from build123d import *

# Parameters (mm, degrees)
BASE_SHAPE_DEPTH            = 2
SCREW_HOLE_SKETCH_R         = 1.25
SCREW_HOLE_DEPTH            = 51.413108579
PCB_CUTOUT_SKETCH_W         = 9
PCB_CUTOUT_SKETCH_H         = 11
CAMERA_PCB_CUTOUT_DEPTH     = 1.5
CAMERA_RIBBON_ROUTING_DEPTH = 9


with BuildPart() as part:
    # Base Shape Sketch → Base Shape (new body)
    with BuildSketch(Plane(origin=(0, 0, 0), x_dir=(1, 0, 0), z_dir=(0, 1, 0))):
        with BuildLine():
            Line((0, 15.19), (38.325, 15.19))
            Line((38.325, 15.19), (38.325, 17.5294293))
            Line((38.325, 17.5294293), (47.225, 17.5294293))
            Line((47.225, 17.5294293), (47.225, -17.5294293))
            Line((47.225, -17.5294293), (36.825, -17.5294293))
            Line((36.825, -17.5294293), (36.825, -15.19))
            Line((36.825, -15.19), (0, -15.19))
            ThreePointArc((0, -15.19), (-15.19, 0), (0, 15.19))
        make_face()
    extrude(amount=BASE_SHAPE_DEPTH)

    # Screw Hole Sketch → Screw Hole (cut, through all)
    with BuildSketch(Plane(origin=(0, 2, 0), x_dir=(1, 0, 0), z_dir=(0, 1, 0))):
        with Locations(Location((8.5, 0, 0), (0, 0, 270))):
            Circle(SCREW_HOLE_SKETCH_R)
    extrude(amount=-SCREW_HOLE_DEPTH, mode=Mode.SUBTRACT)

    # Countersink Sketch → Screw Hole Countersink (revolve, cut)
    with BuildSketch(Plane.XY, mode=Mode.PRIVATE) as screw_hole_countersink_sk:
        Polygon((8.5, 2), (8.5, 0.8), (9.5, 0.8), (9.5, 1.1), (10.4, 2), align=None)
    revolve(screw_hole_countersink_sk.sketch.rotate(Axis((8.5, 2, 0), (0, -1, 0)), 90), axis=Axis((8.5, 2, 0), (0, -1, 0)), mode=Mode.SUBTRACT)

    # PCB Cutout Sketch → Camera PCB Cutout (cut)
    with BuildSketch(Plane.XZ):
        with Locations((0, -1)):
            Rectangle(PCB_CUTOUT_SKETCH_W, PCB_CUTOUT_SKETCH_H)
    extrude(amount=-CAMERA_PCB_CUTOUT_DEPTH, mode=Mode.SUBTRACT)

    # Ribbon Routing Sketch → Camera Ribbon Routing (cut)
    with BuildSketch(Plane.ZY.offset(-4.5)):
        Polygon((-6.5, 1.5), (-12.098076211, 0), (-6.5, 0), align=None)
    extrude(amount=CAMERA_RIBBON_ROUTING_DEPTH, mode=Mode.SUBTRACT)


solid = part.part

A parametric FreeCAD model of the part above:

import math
import FreeCAD as App
import Part
import Sketcher

V = App.Vector
Q = App.Units.Quantity


def add_polygon(sketch, points):
    """Adds a closed chain of lines whose ends are joined by coincident constraints."""
    first, n = sketch.GeometryCount, len(points)
    for a, b in zip(points, points[1:] + points[:1]):
        sketch.addGeometry(Part.LineSegment(App.Vector(*a, 0), App.Vector(*b, 0)), False)
    for i in range(n):
        sketch.addConstraint(Sketcher.Constraint("Coincident", first + i, 2, first + (i + 1) % n, 1))

doc = App.newDocument("Part")
body = doc.addObject("PartDesign::Body", "Body")

# Sketch on XZ plane
sketch1 = body.newObject("Sketcher::SketchObject", "Sketch")
sketch1.AttachmentSupport = (doc.getObject("XZ_Plane"), [""])
sketch1.MapMode = "FlatFace"
sketch1.addGeometry(Part.LineSegment(V(38.3, -15.2, 0), V(0, -15.2, 0)), False)
sketch1.addGeometry(Part.ArcOfCircle(Part.Circle(V(0, 0, 0), V(0, 0, 1), 15.2), math.radians(90), math.radians(270)), False)
sketch1.addGeometry(Part.LineSegment(V(0, 15.2, 0), V(36.8, 15.2, 0)), False)
sketch1.addGeometry(Part.LineSegment(V(36.8, 15.2, 0), V(36.8, 17.5, 0)), False)
sketch1.addGeometry(Part.LineSegment(V(36.8, 17.5, 0), V(47.2, 17.5, 0)), False)
sketch1.addGeometry(Part.LineSegment(V(47.2, 17.5, 0), V(47.2, -17.5, 0)), False)
sketch1.addGeometry(Part.LineSegment(V(47.2, -17.5, 0), V(38.3, -17.5, 0)), False)
sketch1.addGeometry(Part.LineSegment(V(38.3, -17.5, 0), V(38.3, -15.2, 0)), False)
sketch1.addConstraint(Sketcher.Constraint("Tangent", 0, 2, 1, 2))
sketch1.addConstraint(Sketcher.Constraint("Tangent", 1, 1, 2, 1))
sketch1.addConstraint(Sketcher.Constraint("Coincident", 2, 2, 3, 1))
sketch1.addConstraint(Sketcher.Constraint("Coincident", 3, 2, 4, 1))
sketch1.addConstraint(Sketcher.Constraint("Coincident", 4, 2, 5, 1))
sketch1.addConstraint(Sketcher.Constraint("Coincident", 5, 2, 6, 1))
sketch1.addConstraint(Sketcher.Constraint("Coincident", 6, 2, 7, 1))
sketch1.addConstraint(Sketcher.Constraint("Coincident", 7, 2, 0, 1))
sketch1.addConstraint(Sketcher.Constraint("Horizontal", 0))
sketch1.addConstraint(Sketcher.Constraint("Horizontal", 2))
sketch1.addConstraint(Sketcher.Constraint("Vertical", 3))
sketch1.addConstraint(Sketcher.Constraint("Horizontal", 4))
sketch1.addConstraint(Sketcher.Constraint("Vertical", 5))
sketch1.addConstraint(Sketcher.Constraint("Horizontal", 6))
sketch1.addConstraint(Sketcher.Constraint("Vertical", 7))
sketch1.addConstraint(Sketcher.Constraint("Coincident", 1, 3, -1, 1))
sketch1.addConstraint(Sketcher.Constraint("Equal", 3, 7))
sketch1.addConstraint(Sketcher.Constraint("Radius", 1, Q("15.19 mm")))
sketch1.addConstraint(Sketcher.Constraint("DistanceX", 4, 1, 4, 2, Q("10.4 mm")))
sketch1.addConstraint(Sketcher.Constraint("DistanceX", 6, 2, 6, 1, Q("8.9 mm")))
sketch1.addConstraint(Sketcher.Constraint("DistanceX", 0, 2, 0, 1, Q("38.325 mm")))
sketch1.addConstraint(Sketcher.Constraint("DistanceY", 3, 1, 3, 2, Q("2.339429 mm")))
pad1 = body.newObject("PartDesign::Pad", "Pad")
pad1.Profile = sketch1
pad1.Length = 2
pad1.Reversed = True

# Sketch on XZ plane
sketch2 = body.newObject("Sketcher::SketchObject", "Sketch001")
sketch2.AttachmentSupport = (doc.getObject("XZ_Plane"), [""])
sketch2.MapMode = "FlatFace"
sketch2.AttachmentOffset = App.Placement(V(0, 0, -2), App.Rotation())
sketch2.addGeometry(Part.Circle(V(8.5, 0, 0), V(0, 0, 1), 1.2), False)
sketch2.addConstraint(Sketcher.Constraint("PointOnObject", 0, 3, -1))
sketch2.addConstraint(Sketcher.Constraint("Diameter", 0, Q("2.5 mm")))
sketch2.addConstraint(Sketcher.Constraint("DistanceX", -1, 1, 0, 3, Q("8.5 mm")))
pocket1 = body.newObject("PartDesign::Pocket", "Pocket")
pocket1.Profile = sketch2
pocket1.Type = "ThroughAll"
pocket1.Reversed = True

# Sketch on XY plane
sketch3 = body.newObject("Sketcher::SketchObject", "Sketch002")
sketch3.AttachmentSupport = (doc.getObject("XY_Plane"), [""])
sketch3.MapMode = "FlatFace"
add_polygon(sketch3, [(8.5, 2), (8.5, 0.8), (9.5, 0.8), (9.5, 1.1), (10.4, 2)])  # lines 0-4
sketch3.addGeometry(Part.LineSegment(V(8.5, 2, 0), V(8.5, 0.8, 0)), True)  # axis
sketch3.addConstraint(Sketcher.Constraint("Vertical", 0))
sketch3.addConstraint(Sketcher.Constraint("Horizontal", 1))
sketch3.addConstraint(Sketcher.Constraint("Vertical", 2))
sketch3.addConstraint(Sketcher.Constraint("Horizontal", 4))
sketch3.addConstraint(Sketcher.Constraint("Vertical", 5))
sketch3.addConstraint(Sketcher.Constraint("Coincident", 5, 1, 4, 2))
sketch3.addConstraint(Sketcher.Constraint("Horizontal", 1, 2, 5, 2))
sketch3.addConstraint(Sketcher.Constraint("DistanceX", 1, 1, 1, 2, Q("1 mm")))
sketch3.addConstraint(Sketcher.Constraint("Angle", 3, Q("45 deg")))
sketch3.addConstraint(Sketcher.Constraint("DistanceX", 4, 2, 4, 1, Q("1.9 mm")))
sketch3.addConstraint(Sketcher.Constraint("DistanceY", 0, 2, 0, 1, Q("1.2 mm")))
sketch3.addConstraint(Sketcher.Constraint("DistanceY", -1, 1, 3, 2, Q("2 mm")))
sketch3.addConstraint(Sketcher.Constraint("DistanceX", -1, 1, 0, 2, Q("8.5 mm")))
groove = body.newObject("PartDesign::Groove", "Groove")
groove.Profile = sketch3
groove.ReferenceAxis = (sketch3, ["Axis0"])
groove.Angle = 360

# Sketch on XZ plane
sketch4 = body.newObject("Sketcher::SketchObject", "Sketch003")
sketch4.AttachmentSupport = (doc.getObject("XZ_Plane"), [""])
sketch4.MapMode = "FlatFace"
add_polygon(sketch4, [(-4, 4), (-4, -6), (4, -6), (4, 4)])  # lines 0-3
sketch4.addConstraint(Sketcher.Constraint("Vertical", 0))
sketch4.addConstraint(Sketcher.Constraint("Horizontal", 1))
sketch4.addConstraint(Sketcher.Constraint("Vertical", 2))
sketch4.addConstraint(Sketcher.Constraint("Horizontal", 3))
sketch4.addConstraint(Sketcher.Constraint("DistanceX", 1, 1, 1, 2, Q("9 mm")))
sketch4.addConstraint(Sketcher.Constraint("DistanceY", 0, 2, 0, 1, Q("11 mm")))
sketch4.addConstraint(Sketcher.Constraint("DistanceX", 0, 2, -1, 1, Q("4.5 mm")))
sketch4.addConstraint(Sketcher.Constraint("DistanceY", 0, 2, -1, 1, Q("6.5 mm")))
pocket2 = body.newObject("PartDesign::Pocket", "Pocket001")
pocket2.Profile = sketch4
pocket2.Length = 1.5

# Sketch on YZ plane
sketch5 = body.newObject("Sketcher::SketchObject", "Sketch004")
sketch5.AttachmentSupport = (doc.getObject("YZ_Plane"), [""])
sketch5.MapMode = "FlatFace"
sketch5.AttachmentOffset = App.Placement(V(0, 0, 4.5), App.Rotation())
add_polygon(sketch5, [(1.5, -6.5), (0, -12.1), (0, -6.5)])  # lines 0-2
sketch5.addConstraint(Sketcher.Constraint("Vertical", 1))
sketch5.addConstraint(Sketcher.Constraint("Horizontal", 2))
sketch5.addConstraint(Sketcher.Constraint("PointOnObject", 0, 2, -2))
sketch5.addConstraint(Sketcher.Constraint("Angle", 0, Q("-105 deg")))
sketch5.addConstraint(Sketcher.Constraint("DistanceX", 2, 1, 2, 2, Q("1.5 mm")))
sketch5.addConstraint(Sketcher.Constraint("DistanceY", 1, 2, -1, 1, Q("6.5 mm")))
pocket3 = body.newObject("PartDesign::Pocket", "Pocket002")
pocket3.Profile = sketch5
pocket3.Length = 9

doc.recompute()
